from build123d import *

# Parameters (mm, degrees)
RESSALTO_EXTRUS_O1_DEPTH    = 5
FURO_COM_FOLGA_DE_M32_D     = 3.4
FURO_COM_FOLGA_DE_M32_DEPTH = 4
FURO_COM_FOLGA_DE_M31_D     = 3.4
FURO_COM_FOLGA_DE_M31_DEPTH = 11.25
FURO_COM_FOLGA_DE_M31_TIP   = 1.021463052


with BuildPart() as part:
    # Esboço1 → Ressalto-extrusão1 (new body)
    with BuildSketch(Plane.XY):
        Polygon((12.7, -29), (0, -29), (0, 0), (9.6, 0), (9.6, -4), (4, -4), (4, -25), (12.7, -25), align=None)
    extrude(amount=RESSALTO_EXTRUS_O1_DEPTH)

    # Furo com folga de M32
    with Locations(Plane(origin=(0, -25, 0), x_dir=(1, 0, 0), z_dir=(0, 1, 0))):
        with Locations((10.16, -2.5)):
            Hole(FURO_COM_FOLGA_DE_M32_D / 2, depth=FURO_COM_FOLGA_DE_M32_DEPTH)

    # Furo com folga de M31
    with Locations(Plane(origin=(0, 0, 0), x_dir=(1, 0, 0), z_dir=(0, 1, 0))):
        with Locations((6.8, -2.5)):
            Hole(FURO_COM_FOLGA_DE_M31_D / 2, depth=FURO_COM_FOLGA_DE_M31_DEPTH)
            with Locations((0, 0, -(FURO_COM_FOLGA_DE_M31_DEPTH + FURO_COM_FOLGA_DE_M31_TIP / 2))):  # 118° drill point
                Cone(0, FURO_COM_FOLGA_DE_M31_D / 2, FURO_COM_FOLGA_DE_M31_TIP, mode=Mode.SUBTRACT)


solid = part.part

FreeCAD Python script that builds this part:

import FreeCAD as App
import Part
import Sketcher
from FreeCAD import Vector
Q = App.Units.Quantity

doc = App.newDocument("Part")
body = doc.addObject("PartDesign::Body", "Body")

sketch1 = body.newObject("Sketcher::SketchObject", "Sketch")
sketch1.AttachmentSupport = (doc.getObject("XY_Plane"), [""])
sketch1.MapMode = "FlatFace"
sketch1.addGeometry([
    Part.LineSegment(Vector(0, -29, 0), Vector(12.7, -29, 0)),
    Part.LineSegment(Vector(12.7, -29, 0), Vector(12.7, -25, 0)),
    Part.LineSegment(Vector(12.7, -25, 0), Vector(4, -25, 0)),
    Part.LineSegment(Vector(4, -25, 0), Vector(4, -4, 0)),
    Part.LineSegment(Vector(4, -4, 0), Vector(9.6, -4, 0)),
    Part.LineSegment(Vector(9.6, -4, 0), Vector(9.6, 0, 0)),
    Part.LineSegment(Vector(9.6, 0, 0), Vector(0, 0, 0)),
    Part.LineSegment(Vector(0, 0, 0), Vector(0, -29, 0)),
], False)
sketch1.addConstraint([
    Sketcher.Constraint("Coincident", 0, 2, 1, 1),
    Sketcher.Constraint("Coincident", 1, 2, 2, 1),
    Sketcher.Constraint("Coincident", 2, 2, 3, 1),
    Sketcher.Constraint("Coincident", 3, 2, 4, 1),
    Sketcher.Constraint("Coincident", 4, 2, 5, 1),
    Sketcher.Constraint("Coincident", 5, 2, 6, 1),
    Sketcher.Constraint("Coincident", 6, 2, 7, 1),
    Sketcher.Constraint("Coincident", 7, 2, 0, 1),
    Sketcher.Constraint("Horizontal", 0),
    Sketcher.Constraint("Vertical", 1),
    Sketcher.Constraint("Horizontal", 2),
    Sketcher.Constraint("Vertical", 3),
    Sketcher.Constraint("Horizontal", 4),
    Sketcher.Constraint("Vertical", 5),
    Sketcher.Constraint("Horizontal", 6),
    Sketcher.Constraint("Vertical", 7),
    Sketcher.Constraint("Coincident", 6, 2, -1, 1),
    Sketcher.Constraint("Equal", 1, 5),
    Sketcher.Constraint("DistanceY", 1, 1, 1, 2, Q("4 mm")),
    Sketcher.Constraint("DistanceY", 3, 1, 3, 2, Q("21 mm")),
    Sketcher.Constraint("DistanceX", 0, 1, 0, 2, Q("12.7 mm")),
    Sketcher.Constraint("DistanceX", 2, 2, 2, 1, Q("8.7 mm")),
    Sketcher.Constraint("DistanceX", 4, 1, 4, 2, Q("5.6 mm")),
])
pad1 = body.newObject("PartDesign::Pad", "Pad")
pad1.Profile = sketch1
pad1.Length = 5

sketch2 = body.newObject("Sketcher::SketchObject", "Sketch001")
sketch2.AttachmentSupport = (doc.getObject("XZ_Plane"), [""])
sketch2.MapMode = "FlatFace"
sketch2.AttachmentOffset = App.Placement(Vector(0, 0, 25), App.Rotation())
sketch2.addGeometry(Part.Circle(Vector(10.2, 2.5, 0), Vector(0, 0, 1), 1.7), False)
sketch2.addConstraint([
    Sketcher.Constraint("Diameter", 0, Q("3.4 mm")),
    Sketcher.Constraint("DistanceY", -1, 1, 0, 3, Q("2.5 mm")),
    Sketcher.Constraint("DistanceX", -1, 1, 0, 3, Q("10.16 mm")),
])
doc.recompute()
hole = body.newObject("PartDesign::Hole", "Hole")
hole.Profile = sketch2
hole.ThreadType = "None"
hole.Diameter = 3.4
hole.DepthType = "Dimension"
hole.Depth = 4
hole.DrillPoint = "Flat"
hole.Reversed = True

sketch3 = body.newObject("Sketcher::SketchObject", "Sketch002")
sketch3.AttachmentSupport = (doc.getObject("XZ_Plane"), [""])
sketch3.MapMode = "FlatFace"
sketch3.addGeometry(Part.Circle(Vector(6.8, 2.5, 0), Vector(0, 0, 1), 1.7), False)
sketch3.addConstraint([
    Sketcher.Constraint("Diameter", 0, Q("3.4 mm")),
    Sketcher.Constraint("DistanceX", -1, 1, 0, 3, Q("6.8 mm")),
    Sketcher.Constraint("DistanceY", -1, 1, 0, 3, Q("2.5 mm")),
])
doc.recompute()
hole2 = body.newObject("PartDesign::Hole", "Hole001")
hole2.Profile = sketch3
hole2.ThreadType = "None"
hole2.Diameter = 3.4
hole2.DepthType = "Dimension"
hole2.Depth = 11.25
hole2.DrillPoint = "Angled"
hole2.DrillPointAngle = 118
hole2.Reversed = True

doc.recompute()
